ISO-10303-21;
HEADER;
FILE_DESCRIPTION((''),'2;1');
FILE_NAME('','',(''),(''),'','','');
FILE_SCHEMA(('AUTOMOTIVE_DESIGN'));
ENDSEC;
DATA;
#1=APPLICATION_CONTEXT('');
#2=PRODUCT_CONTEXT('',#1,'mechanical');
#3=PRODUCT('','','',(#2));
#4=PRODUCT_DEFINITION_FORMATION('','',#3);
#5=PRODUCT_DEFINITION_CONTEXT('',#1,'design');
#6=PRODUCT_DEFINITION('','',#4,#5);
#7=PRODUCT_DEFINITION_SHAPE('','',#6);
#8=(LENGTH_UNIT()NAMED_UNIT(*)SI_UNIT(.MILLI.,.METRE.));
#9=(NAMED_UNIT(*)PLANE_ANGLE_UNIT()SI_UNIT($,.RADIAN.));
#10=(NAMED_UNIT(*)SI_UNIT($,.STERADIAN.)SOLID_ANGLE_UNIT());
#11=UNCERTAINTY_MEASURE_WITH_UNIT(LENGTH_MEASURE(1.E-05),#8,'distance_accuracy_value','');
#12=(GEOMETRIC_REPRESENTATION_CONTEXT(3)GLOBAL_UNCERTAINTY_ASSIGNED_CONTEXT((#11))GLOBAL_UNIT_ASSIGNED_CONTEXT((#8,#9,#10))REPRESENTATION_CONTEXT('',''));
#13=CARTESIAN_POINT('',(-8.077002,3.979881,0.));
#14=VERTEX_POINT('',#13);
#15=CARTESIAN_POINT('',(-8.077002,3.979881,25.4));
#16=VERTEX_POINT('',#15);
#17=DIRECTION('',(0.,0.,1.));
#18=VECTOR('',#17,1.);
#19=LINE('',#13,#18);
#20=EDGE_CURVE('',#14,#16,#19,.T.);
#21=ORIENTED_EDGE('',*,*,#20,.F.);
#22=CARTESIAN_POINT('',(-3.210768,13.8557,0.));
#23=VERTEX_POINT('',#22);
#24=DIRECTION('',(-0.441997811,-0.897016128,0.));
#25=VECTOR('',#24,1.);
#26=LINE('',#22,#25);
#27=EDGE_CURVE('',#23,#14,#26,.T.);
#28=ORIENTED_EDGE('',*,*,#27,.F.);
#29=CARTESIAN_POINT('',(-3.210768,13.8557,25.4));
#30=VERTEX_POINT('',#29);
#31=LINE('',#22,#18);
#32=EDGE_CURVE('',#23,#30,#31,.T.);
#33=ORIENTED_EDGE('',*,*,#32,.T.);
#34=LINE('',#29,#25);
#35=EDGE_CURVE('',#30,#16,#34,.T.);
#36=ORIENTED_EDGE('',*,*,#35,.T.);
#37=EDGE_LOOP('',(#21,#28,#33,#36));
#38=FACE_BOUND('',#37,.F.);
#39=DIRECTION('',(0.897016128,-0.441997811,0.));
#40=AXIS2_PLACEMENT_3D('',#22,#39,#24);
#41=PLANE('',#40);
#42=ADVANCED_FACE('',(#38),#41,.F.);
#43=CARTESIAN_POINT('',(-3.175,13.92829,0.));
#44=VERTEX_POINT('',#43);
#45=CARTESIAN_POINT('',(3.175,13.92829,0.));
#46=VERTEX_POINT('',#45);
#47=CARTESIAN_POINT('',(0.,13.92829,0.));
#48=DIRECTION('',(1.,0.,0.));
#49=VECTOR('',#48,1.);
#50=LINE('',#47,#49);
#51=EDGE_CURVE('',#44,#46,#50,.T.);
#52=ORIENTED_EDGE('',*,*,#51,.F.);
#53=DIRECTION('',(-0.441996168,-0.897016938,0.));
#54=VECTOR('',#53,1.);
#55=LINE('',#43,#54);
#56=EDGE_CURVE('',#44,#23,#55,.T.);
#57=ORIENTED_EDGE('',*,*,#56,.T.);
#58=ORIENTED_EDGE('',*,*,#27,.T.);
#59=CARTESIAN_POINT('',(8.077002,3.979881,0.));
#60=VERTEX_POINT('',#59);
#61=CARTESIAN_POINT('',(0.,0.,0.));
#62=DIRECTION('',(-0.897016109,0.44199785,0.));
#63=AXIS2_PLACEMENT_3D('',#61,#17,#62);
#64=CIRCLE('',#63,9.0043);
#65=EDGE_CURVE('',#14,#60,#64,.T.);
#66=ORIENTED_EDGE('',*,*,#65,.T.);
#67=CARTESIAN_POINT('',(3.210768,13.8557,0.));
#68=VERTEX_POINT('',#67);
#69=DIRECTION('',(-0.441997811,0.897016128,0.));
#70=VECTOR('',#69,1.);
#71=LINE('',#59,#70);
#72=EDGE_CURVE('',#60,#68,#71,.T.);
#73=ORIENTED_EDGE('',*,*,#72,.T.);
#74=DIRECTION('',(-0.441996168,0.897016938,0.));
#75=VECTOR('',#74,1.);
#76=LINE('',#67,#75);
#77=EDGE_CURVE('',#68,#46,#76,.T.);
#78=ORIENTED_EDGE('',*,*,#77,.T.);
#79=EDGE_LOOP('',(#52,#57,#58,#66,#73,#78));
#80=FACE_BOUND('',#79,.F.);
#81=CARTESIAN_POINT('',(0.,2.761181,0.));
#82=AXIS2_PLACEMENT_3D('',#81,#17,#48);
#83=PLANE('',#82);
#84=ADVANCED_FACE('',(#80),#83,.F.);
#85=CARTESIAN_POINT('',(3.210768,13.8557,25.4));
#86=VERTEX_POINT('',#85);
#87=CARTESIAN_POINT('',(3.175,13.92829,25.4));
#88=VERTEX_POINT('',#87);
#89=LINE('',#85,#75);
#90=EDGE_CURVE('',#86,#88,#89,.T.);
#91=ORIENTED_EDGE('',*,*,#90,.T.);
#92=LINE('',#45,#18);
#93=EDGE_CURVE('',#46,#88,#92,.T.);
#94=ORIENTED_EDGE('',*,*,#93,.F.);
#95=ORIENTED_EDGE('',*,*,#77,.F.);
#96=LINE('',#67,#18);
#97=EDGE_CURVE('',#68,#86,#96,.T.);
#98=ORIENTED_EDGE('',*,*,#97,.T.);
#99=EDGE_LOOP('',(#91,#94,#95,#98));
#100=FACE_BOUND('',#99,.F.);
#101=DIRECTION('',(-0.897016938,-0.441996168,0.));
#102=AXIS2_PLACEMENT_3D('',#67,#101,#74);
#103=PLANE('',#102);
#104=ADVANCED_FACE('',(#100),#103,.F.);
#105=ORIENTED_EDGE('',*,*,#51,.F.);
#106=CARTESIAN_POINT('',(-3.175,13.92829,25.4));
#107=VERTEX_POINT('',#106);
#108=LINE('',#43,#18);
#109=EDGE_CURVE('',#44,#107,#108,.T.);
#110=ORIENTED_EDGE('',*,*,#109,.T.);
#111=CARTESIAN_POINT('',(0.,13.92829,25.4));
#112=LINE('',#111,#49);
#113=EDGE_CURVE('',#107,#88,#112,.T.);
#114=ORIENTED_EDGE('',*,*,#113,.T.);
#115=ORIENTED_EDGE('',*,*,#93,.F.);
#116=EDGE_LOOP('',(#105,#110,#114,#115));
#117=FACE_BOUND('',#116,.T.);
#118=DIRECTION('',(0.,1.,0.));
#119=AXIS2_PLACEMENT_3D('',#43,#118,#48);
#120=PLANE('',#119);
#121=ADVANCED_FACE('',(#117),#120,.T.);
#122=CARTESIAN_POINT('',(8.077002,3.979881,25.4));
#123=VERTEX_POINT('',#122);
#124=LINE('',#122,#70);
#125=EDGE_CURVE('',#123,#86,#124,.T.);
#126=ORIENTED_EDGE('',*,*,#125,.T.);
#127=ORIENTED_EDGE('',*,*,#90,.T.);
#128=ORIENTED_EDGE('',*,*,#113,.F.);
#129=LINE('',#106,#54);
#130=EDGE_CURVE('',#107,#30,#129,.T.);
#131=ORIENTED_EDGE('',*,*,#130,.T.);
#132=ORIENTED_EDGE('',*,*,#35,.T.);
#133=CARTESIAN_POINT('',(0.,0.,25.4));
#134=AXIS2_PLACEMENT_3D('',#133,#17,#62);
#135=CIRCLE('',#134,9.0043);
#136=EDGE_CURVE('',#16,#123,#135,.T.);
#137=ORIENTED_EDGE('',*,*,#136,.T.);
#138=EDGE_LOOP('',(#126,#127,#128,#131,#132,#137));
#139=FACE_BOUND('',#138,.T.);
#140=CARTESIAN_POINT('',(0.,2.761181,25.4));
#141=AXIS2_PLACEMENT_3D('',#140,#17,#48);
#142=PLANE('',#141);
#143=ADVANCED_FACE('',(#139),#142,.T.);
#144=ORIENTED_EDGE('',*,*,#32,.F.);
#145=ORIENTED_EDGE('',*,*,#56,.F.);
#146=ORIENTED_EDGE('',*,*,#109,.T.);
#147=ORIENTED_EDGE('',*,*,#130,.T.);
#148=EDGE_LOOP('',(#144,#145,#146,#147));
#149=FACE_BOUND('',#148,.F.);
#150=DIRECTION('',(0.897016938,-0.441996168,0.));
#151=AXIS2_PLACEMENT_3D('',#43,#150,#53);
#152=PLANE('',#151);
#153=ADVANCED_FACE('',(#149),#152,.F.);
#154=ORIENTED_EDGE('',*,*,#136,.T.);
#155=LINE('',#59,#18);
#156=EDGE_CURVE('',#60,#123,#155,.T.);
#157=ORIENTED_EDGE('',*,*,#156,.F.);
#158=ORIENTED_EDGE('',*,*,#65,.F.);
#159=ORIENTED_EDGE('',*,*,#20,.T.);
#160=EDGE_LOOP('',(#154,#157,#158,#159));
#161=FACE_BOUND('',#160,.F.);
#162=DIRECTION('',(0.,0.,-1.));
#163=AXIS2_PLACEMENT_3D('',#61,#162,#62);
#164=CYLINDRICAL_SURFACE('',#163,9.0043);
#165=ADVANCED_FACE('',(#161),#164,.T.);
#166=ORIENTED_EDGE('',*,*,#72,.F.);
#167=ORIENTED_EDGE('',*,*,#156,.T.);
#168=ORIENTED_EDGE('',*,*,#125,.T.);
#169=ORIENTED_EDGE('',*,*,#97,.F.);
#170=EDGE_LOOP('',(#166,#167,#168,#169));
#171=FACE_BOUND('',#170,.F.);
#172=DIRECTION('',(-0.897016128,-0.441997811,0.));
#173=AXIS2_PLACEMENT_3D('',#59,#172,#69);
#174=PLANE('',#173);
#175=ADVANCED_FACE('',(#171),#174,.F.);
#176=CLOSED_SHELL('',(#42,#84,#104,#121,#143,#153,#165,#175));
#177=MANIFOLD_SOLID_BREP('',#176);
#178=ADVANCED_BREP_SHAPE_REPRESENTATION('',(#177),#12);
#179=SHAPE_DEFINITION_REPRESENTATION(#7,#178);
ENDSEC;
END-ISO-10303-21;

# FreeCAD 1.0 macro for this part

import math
import FreeCAD as App
import Part
import Sketcher

V = App.Vector
Q = App.Units.Quantity

doc = App.newDocument("Part")
params = doc.addObject("Spreadsheet::Sheet", "Params")
for row, (alias, value) in enumerate([
    ("sketch1_width", "0.25 in"),
    ("pad1_length", "1 in"),
], start=1):
    params.set(f"A{row}", alias)
    params.set(f"B{row}", "=" + value)
    params.setAlias(f"B{row}", alias)

body = doc.addObject("PartDesign::Body", "Body")

sketch1 = doc.addObject("Sketcher::SketchObject", "Sketch")
body.addObject(sketch1)
sketch1.AttachmentSupport = (doc.XY_Plane, [""])
sketch1.MapMode = "FlatFace"
sketch1.addGeometry(Part.LineSegment(V(-3.21, 13.86, 0), V(-8.08, 3.98, 0)), False)
sketch1.addGeometry(Part.ArcOfCircle(Part.Circle(V(0, 0, 0), V(0, 0, 1), 9), math.radians(154), math.radians(386)), False)
sketch1.addGeometry(Part.LineSegment(V(8.08, 3.98, 0), V(3.21, 13.86, 0)), False)
sketch1.addGeometry(Part.LineSegment(V(3.21, 13.86, 0), V(3.17, 13.93, 0)), False)
sketch1.addGeometry(Part.LineSegment(V(3.17, 13.93, 0), V(-3.17, 13.93, 0)), False)
sketch1.addGeometry(Part.LineSegment(V(-3.17, 13.93, 0), V(-3.21, 13.86, 0)), False)
sketch1.addConstraint(Sketcher.Constraint("Tangent", 0, 2, 1, 1))
sketch1.addConstraint(Sketcher.Constraint("Tangent", 1, 2, 2, 1))
sketch1.addConstraint(Sketcher.Constraint("Coincident", 2, 2, 3, 1))
sketch1.addConstraint(Sketcher.Constraint("Coincident", 3, 2, 4, 1))
sketch1.addConstraint(Sketcher.Constraint("Coincident", 4, 2, 5, 1))
sketch1.addConstraint(Sketcher.Constraint("Coincident", 5, 2, 0, 1))
sketch1.addConstraint(Sketcher.Constraint("Horizontal", 4))
sketch1.addConstraint(Sketcher.Constraint("Coincident", 1, 3, -1, 1))
sketch1.addConstraint(Sketcher.Constraint("Symmetric", 2, 2, 5, 2, -2))
sketch1.addConstraint(Sketcher.Constraint("Parallel", 2, 3))
sketch1.addConstraint(Sketcher.Constraint("Parallel", 0, 5))
sketch1.addConstraint(Sketcher.Constraint("DistanceX", 4, 2, 4, 1, Q("0.25 in")))
sketch1.addConstraint(Sketcher.Constraint("Radius", 1, Q("0.3545 in")))
sketch1.addConstraint(Sketcher.Constraint("DistanceY", -1, 1, 2, 2, Q("0.5455 in")))
sketch1.addConstraint(Sketcher.Constraint("DistanceX", -1, 1, 1, 2, 8.077002))
sketch1.setExpression("Constraints[11]", "Params.sketch1_width")
pad1 = doc.addObject("PartDesign::Pad", "Pad")
body.addObject(pad1)
pad1.Profile = sketch1
pad1.setExpression("Length", "Params.pad1_length")

doc.recompute()
